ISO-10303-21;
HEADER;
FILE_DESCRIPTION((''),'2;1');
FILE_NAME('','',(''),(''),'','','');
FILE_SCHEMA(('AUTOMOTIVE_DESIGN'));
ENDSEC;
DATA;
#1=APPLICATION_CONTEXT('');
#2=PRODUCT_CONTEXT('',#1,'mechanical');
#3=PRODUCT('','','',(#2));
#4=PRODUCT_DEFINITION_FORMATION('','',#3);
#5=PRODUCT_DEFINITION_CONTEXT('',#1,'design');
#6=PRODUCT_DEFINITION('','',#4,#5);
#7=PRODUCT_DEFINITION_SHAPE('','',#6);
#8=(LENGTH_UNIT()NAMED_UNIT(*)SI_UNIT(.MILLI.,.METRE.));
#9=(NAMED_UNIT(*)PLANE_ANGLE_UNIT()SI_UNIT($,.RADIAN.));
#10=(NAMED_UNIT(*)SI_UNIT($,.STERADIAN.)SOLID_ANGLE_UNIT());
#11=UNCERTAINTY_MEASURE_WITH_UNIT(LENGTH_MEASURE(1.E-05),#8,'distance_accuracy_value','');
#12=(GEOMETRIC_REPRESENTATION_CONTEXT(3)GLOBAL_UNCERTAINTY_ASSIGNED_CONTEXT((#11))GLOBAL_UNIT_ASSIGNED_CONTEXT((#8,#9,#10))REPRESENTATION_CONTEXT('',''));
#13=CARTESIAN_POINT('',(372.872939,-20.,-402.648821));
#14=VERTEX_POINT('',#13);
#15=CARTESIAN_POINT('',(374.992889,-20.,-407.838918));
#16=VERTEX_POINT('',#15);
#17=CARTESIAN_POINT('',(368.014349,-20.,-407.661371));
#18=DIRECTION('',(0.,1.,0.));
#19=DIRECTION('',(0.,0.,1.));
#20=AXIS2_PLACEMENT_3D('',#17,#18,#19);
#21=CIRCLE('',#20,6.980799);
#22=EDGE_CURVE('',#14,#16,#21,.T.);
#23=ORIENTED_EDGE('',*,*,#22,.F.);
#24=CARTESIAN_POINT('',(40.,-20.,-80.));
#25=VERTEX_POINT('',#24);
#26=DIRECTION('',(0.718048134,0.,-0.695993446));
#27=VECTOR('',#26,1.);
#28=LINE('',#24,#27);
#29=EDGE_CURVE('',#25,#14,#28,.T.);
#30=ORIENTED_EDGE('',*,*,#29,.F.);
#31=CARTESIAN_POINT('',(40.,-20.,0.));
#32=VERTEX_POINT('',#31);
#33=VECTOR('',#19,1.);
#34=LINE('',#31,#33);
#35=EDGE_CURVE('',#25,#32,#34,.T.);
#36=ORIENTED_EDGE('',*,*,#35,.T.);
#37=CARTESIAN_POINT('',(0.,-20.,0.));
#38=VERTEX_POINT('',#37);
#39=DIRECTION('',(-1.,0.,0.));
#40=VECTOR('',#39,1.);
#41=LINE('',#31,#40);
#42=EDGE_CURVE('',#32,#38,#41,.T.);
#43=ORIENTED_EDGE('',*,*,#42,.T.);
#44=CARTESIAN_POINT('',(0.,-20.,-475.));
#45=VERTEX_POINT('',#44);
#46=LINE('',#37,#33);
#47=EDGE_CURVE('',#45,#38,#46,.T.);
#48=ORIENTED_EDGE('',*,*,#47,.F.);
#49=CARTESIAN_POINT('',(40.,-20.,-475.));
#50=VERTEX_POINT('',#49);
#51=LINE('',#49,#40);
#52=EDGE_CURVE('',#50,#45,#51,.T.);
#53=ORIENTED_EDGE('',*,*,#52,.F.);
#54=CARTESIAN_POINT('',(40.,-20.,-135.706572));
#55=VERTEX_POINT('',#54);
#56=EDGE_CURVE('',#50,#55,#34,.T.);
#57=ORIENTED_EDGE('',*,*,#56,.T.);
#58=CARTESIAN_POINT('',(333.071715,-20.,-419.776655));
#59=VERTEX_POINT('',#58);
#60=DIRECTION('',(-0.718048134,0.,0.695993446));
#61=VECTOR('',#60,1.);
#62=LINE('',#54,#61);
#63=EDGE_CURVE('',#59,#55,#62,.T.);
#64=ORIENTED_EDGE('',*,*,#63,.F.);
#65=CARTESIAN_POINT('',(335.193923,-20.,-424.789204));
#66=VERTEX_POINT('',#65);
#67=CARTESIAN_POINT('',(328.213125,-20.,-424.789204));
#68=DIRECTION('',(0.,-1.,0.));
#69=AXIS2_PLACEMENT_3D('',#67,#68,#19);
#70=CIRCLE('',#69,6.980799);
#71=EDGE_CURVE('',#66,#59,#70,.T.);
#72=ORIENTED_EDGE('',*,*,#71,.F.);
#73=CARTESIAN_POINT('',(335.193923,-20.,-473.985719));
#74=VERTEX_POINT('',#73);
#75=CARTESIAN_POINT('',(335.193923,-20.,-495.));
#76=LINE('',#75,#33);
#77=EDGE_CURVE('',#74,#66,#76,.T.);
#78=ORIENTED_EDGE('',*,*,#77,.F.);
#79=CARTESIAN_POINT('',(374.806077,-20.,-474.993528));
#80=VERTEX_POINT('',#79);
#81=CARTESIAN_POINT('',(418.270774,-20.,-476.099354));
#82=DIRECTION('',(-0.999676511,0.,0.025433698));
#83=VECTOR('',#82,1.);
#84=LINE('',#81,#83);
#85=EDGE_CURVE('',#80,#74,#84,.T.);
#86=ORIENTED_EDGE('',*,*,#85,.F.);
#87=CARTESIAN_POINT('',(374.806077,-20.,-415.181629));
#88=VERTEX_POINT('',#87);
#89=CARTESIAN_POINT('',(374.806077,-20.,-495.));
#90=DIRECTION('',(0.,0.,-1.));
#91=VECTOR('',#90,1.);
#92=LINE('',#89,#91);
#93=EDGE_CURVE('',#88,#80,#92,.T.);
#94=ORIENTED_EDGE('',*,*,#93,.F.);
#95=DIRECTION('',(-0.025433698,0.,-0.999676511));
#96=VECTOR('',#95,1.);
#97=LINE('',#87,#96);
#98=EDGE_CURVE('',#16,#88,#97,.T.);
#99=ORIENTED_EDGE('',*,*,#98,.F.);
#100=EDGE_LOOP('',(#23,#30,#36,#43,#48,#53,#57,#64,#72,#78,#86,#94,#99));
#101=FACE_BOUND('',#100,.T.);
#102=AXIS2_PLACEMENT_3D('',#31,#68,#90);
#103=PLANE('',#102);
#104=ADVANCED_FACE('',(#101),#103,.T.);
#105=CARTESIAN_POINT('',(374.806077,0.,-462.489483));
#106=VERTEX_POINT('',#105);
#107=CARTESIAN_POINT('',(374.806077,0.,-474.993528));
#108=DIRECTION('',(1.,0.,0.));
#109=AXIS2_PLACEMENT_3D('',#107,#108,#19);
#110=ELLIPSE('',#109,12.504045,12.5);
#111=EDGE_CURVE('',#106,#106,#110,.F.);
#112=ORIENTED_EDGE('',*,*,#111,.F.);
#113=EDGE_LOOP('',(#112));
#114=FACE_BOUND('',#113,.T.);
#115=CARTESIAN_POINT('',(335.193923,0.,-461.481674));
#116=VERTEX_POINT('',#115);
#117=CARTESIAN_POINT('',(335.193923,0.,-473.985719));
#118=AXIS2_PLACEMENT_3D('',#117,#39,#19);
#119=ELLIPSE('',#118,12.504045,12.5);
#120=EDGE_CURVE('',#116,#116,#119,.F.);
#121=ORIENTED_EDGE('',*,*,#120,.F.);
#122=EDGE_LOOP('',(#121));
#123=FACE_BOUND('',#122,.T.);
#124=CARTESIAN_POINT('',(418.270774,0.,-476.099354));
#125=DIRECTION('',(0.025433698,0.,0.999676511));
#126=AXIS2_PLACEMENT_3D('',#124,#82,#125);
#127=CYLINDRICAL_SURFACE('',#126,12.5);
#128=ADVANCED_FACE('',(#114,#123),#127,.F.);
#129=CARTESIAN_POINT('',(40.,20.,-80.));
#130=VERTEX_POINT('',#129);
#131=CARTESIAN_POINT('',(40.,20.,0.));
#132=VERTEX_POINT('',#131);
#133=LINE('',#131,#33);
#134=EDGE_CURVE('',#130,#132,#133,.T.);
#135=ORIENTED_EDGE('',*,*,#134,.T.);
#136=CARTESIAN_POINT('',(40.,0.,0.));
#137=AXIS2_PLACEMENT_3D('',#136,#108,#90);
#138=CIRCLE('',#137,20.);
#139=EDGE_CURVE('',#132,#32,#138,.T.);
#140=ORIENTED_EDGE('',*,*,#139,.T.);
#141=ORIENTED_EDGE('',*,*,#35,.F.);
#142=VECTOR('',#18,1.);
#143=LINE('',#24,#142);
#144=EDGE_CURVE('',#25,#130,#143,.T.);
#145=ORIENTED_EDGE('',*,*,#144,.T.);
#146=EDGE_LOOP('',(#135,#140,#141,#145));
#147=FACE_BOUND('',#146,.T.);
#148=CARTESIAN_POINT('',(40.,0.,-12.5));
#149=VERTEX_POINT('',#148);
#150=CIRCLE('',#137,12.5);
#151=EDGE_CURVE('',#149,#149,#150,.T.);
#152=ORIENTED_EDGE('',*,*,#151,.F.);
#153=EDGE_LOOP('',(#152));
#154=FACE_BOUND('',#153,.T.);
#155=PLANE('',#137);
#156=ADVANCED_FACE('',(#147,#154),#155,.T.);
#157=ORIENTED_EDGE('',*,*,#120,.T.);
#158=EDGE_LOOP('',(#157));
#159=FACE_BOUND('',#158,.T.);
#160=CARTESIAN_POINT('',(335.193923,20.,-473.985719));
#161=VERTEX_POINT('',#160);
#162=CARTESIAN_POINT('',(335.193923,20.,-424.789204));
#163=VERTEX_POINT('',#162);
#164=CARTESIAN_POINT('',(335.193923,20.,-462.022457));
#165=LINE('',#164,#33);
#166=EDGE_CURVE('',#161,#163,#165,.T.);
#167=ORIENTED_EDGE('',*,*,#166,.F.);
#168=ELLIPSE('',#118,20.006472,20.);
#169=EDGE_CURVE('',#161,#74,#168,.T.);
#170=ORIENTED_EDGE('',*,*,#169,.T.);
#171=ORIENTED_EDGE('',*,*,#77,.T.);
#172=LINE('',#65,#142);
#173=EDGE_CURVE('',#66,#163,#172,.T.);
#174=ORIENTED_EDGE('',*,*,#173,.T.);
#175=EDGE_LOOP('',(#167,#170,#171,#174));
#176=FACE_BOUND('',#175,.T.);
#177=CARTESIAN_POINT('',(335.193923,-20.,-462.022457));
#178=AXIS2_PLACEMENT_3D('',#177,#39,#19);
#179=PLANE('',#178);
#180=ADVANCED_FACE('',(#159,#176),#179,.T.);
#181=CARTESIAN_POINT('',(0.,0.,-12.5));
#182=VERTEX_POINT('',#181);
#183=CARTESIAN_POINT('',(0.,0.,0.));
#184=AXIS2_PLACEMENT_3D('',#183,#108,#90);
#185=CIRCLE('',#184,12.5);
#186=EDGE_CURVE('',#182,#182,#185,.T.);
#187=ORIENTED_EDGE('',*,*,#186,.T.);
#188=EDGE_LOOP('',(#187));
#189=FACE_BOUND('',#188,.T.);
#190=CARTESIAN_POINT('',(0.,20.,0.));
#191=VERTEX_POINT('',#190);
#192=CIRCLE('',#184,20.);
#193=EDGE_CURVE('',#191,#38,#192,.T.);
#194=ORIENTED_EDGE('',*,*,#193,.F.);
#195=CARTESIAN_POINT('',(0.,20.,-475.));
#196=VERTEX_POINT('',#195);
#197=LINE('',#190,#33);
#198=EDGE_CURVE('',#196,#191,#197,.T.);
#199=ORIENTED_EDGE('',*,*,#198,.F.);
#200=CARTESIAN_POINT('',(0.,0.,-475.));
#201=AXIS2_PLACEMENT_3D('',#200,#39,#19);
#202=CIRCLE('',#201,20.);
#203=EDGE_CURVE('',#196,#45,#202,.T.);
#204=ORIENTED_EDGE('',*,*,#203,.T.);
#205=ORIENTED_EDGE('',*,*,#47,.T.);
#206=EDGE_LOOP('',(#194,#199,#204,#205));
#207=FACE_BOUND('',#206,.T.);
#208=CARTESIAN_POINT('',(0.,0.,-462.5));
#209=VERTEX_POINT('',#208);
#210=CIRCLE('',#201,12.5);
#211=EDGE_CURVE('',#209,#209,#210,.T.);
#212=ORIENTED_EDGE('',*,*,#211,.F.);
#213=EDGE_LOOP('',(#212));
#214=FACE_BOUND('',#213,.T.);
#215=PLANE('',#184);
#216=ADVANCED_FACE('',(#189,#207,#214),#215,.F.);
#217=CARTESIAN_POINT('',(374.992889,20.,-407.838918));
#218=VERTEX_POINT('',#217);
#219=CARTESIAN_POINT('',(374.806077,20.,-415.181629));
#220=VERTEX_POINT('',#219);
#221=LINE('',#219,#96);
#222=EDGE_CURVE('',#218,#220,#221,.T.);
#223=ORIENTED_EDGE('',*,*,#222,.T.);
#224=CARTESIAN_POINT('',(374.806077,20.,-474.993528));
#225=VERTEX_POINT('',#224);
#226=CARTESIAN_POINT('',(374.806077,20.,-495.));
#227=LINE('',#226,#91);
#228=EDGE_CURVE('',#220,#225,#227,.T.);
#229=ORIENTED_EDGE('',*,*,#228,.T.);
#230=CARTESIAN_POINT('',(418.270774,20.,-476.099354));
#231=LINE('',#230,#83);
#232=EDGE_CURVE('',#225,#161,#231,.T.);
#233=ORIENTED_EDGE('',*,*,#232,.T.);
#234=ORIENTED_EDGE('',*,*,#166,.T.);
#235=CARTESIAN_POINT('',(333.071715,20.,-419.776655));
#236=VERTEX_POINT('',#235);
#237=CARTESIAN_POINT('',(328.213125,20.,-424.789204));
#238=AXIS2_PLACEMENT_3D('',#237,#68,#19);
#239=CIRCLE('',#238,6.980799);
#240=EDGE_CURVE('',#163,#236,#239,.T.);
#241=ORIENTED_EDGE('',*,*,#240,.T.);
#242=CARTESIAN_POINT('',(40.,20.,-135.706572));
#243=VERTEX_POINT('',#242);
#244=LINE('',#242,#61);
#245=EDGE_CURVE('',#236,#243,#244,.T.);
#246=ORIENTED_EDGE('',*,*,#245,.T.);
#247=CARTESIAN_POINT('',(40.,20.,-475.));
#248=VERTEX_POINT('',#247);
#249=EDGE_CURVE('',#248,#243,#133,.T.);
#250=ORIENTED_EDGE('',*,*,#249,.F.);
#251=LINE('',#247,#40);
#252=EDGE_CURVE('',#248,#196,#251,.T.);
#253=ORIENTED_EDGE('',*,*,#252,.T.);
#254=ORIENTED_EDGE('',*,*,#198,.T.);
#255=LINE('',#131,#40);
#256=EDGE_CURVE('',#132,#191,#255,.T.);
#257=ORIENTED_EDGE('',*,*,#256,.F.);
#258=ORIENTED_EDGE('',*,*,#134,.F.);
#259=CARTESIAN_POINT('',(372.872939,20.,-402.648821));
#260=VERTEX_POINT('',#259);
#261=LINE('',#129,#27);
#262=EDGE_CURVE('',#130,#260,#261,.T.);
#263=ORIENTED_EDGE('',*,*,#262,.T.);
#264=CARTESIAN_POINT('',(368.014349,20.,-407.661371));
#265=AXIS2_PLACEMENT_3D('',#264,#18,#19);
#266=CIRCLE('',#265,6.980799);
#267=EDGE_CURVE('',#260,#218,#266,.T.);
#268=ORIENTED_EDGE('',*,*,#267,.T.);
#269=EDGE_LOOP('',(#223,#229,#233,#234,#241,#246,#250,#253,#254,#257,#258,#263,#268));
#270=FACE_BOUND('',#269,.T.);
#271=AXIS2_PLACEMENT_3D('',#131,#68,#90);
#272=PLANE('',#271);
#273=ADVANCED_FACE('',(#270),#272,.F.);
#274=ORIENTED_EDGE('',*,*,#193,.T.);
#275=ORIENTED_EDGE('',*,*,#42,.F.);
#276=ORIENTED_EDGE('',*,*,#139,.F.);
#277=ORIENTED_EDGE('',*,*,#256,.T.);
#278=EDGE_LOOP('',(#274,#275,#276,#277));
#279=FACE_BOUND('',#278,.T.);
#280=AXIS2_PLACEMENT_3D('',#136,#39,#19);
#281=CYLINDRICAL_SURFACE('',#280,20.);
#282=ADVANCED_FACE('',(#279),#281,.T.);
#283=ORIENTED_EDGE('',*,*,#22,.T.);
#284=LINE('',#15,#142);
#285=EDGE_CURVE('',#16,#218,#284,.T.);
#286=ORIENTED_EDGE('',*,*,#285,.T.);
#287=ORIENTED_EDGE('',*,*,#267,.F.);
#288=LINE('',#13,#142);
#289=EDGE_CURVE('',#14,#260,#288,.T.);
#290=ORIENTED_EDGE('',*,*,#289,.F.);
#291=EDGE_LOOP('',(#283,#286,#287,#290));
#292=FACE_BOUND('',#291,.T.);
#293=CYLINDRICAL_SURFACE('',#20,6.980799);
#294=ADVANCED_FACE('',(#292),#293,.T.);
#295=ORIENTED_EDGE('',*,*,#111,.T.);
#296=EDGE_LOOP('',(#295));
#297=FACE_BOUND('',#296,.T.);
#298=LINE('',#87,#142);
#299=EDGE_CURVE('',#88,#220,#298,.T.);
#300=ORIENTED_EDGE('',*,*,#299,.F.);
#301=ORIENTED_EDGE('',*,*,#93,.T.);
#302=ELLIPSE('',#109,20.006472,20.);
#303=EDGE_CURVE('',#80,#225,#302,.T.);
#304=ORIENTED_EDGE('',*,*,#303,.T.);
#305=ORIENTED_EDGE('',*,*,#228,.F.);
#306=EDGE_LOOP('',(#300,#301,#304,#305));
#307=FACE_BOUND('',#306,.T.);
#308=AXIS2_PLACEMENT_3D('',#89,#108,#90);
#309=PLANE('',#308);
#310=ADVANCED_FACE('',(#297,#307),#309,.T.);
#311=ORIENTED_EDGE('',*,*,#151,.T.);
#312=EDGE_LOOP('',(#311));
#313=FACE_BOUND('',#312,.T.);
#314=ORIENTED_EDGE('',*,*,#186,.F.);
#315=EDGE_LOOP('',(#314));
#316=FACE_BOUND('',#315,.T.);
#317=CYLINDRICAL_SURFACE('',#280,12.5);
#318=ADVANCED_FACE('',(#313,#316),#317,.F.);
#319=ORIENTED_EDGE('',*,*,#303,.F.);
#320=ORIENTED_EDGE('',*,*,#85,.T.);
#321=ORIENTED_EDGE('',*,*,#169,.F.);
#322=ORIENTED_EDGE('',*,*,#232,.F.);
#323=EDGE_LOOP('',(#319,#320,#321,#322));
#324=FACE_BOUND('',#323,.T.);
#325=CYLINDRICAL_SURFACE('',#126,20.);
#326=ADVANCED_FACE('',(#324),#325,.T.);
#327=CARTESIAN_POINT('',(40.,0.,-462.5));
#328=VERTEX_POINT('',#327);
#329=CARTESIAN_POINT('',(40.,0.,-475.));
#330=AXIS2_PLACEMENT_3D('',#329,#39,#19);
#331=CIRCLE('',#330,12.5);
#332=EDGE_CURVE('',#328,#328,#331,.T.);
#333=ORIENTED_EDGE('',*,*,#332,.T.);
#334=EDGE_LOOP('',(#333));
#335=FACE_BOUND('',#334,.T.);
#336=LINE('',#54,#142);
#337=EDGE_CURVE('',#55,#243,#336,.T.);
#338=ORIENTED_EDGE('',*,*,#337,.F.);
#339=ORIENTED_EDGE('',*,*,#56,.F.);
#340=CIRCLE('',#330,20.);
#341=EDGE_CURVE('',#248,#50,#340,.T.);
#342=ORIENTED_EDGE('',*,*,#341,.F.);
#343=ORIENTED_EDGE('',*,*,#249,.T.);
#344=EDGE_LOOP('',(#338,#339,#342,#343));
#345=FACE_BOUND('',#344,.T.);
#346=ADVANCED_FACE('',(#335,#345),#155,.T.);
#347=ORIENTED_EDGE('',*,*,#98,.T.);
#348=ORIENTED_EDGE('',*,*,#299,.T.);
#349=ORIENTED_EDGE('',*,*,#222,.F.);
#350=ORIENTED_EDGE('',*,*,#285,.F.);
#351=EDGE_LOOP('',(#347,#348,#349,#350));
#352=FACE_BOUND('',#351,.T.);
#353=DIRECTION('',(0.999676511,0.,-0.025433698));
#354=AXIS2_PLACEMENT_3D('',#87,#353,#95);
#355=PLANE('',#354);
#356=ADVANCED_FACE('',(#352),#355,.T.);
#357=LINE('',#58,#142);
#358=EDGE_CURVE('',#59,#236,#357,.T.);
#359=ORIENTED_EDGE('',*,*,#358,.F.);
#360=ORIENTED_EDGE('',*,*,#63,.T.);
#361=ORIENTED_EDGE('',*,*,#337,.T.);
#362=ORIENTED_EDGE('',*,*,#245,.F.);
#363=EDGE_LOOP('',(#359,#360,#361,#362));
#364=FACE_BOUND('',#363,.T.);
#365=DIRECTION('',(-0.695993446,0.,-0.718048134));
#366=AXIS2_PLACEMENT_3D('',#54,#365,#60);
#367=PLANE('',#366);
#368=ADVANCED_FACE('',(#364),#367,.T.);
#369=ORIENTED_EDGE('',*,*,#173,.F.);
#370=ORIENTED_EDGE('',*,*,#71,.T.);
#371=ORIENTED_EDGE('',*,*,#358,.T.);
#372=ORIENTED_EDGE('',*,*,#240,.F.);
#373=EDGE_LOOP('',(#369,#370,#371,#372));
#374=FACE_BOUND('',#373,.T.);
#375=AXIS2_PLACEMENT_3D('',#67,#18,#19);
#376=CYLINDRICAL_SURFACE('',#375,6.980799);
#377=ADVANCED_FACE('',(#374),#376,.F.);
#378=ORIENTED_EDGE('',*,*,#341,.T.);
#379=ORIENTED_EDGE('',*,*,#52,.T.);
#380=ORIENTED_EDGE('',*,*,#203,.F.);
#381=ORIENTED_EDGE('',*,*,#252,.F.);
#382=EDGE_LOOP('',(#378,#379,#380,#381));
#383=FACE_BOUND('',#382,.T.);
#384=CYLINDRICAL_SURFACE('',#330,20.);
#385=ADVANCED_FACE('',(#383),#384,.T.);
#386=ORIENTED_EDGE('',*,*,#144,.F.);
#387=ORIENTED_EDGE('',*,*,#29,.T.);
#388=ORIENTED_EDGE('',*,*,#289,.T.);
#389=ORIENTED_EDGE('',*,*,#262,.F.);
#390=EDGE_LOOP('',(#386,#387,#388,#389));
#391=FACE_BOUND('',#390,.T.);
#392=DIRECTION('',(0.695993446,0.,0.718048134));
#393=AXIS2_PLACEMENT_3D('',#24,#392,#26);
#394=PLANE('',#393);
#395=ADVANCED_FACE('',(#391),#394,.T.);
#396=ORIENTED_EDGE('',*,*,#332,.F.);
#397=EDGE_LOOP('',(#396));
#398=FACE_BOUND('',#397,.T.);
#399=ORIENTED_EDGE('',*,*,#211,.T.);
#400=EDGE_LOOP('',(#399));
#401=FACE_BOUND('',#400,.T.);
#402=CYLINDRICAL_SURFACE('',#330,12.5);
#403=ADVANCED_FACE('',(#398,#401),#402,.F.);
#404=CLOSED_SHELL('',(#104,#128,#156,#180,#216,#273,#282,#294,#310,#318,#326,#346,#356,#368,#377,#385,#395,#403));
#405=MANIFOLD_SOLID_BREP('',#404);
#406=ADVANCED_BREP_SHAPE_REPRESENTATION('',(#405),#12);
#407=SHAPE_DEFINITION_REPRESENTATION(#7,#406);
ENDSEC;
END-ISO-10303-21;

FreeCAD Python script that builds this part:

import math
import FreeCAD as App
import Part
import Sketcher

V = App.Vector

doc = App.newDocument("Part")
body = doc.addObject("PartDesign::Body", "Body")

# Sketch on YZ plane
sketch1 = body.newObject("Sketcher::SketchObject", "Sketch")
sketch1.AttachmentSupport = (doc.getObject("YZ_Plane"), [""])
sketch1.MapMode = "FlatFace"
sketch1.addGeometry(Part.ArcOfCircle(Part.Circle(V(0, 0, 0), V(0, 0, 1), 20), math.radians(0), math.radians(180)), False)
sketch1.addGeometry(Part.LineSegment(V(-20, 0, 0), V(-20, -475, 0)), False)
sketch1.addGeometry(Part.ArcOfCircle(Part.Circle(V(0, -475, 0), V(0, 0, 1), 20), math.radians(180), math.radians(360)), False)
sketch1.addGeometry(Part.LineSegment(V(20, -475, 0), V(20, 0, 0)), False)
sketch1.addGeometry(Part.Circle(V(0, 0, 0), V(0, 0, 1), 12), False)
sketch1.addGeometry(Part.Circle(V(0, -475, 0), V(0, 0, 1), 12), False)
sketch1.addConstraint(Sketcher.Constraint("Tangent", 0, 2, 1, 1))
sketch1.addConstraint(Sketcher.Constraint("Tangent", 1, 2, 2, 1))
sketch1.addConstraint(Sketcher.Constraint("Tangent", 2, 2, 3, 1))
sketch1.addConstraint(Sketcher.Constraint("Tangent", 3, 2, 0, 1))
sketch1.addConstraint(Sketcher.Constraint("Vertical", 1))
sketch1.addConstraint(Sketcher.Constraint("Vertical", 3))
sketch1.addConstraint(Sketcher.Constraint("Coincident", 0, 3, -1, 1))
sketch1.addConstraint(Sketcher.Constraint("Coincident", 4, 3, -1, 1))
sketch1.addConstraint(Sketcher.Constraint("Coincident", 5, 3, 2, 3))
sketch1.addConstraint(Sketcher.Constraint("Equal", 4, 5))
sketch1.addConstraint(Sketcher.Constraint("Diameter", 4, 25.0))
sketch1.addConstraint(Sketcher.Constraint("Radius", 0, 20.0))
sketch1.addConstraint(Sketcher.Constraint("DistanceY", 1, 2, 1, 1, 475.0))
pad1 = body.newObject("PartDesign::Pad", "Pad")
pad1.Profile = sketch1
pad1.Length = 40

# Sketch on XZ plane
sketch2 = body.newObject("Sketcher::SketchObject", "Sketch001")
sketch2.AttachmentSupport = (doc.getObject("XZ_Plane"), [""])
sketch2.MapMode = "FlatFace"
sketch2.AttachmentOffset = App.Placement(V(0, 0, -20), App.Rotation())
sketch2.addGeometry(Part.LineSegment(V(40, -136, 0), V(40, -80, 0)), False)
sketch2.addGeometry(Part.LineSegment(V(40, -80, 0), V(373, -403, 0)), False)
sketch2.addGeometry(Part.ArcOfCircle(Part.Circle(V(368, -408, 0), V(0, 0, 1), 7), math.radians(-1), math.radians(46)), False)
sketch2.addGeometry(Part.LineSegment(V(375, -408, 0), V(375, -415, 0)), False)
sketch2.addGeometry(Part.LineSegment(V(375, -415, 0), V(375, -495, 0)), False)
sketch2.addGeometry(Part.LineSegment(V(375, -495, 0), V(335, -495, 0)), False)
sketch2.addGeometry(Part.LineSegment(V(335, -495, 0), V(335, -425, 0)), False)
sketch2.addGeometry(Part.ArcOfCircle(Part.Circle(V(328, -425, 0), V(0, 0, 1), 7), math.radians(0), math.radians(46)), False)
sketch2.addGeometry(Part.LineSegment(V(333, -420, 0), V(40, -136, 0)), False)
sketch2.addConstraint(Sketcher.Constraint("Coincident", 0, 2, 1, 1))
sketch2.addConstraint(Sketcher.Constraint("Tangent", 1, 2, 2, 2))
sketch2.addConstraint(Sketcher.Constraint("Tangent", 2, 1, 3, 1))
sketch2.addConstraint(Sketcher.Constraint("Coincident", 3, 2, 4, 1))
sketch2.addConstraint(Sketcher.Constraint("Coincident", 4, 2, 5, 1))
sketch2.addConstraint(Sketcher.Constraint("Coincident", 5, 2, 6, 1))
sketch2.addConstraint(Sketcher.Constraint("Tangent", 6, 2, 7, 1))
sketch2.addConstraint(Sketcher.Constraint("Tangent", 7, 2, 8, 1))
sketch2.addConstraint(Sketcher.Constraint("Coincident", 8, 2, 0, 1))
sketch2.addConstraint(Sketcher.Constraint("Vertical", 0))
sketch2.addConstraint(Sketcher.Constraint("Vertical", 4))
sketch2.addConstraint(Sketcher.Constraint("Horizontal", 5))
sketch2.addConstraint(Sketcher.Constraint("Vertical", 6))
sketch2.addConstraint(Sketcher.Constraint("Equal", 2, 7))
sketch2.addConstraint(Sketcher.Constraint("Parallel", 1, 8))
sketch2.addConstraint(Sketcher.Constraint("DistanceX", -1, 1, 0, 2, 40.0))
sketch2.addConstraint(Sketcher.Constraint("DistanceY", 0, 2, -1, 1, 80.0))
sketch2.addConstraint(Sketcher.Constraint("DistanceY", 4, 2, -1, 1, 495.0))
sketch2.addConstraint(Sketcher.Constraint("Radius", 2, 6.980799))
sketch2.addConstraint(Sketcher.Constraint("DistanceY", 0, 1, 0, 2, 55.706572))
sketch2.addConstraint(Sketcher.Constraint("DistanceY", 4, 2, 4, 1, 79.818371))
sketch2.addConstraint(Sketcher.Constraint("DistanceY", 2, 3, 8, 2, 271.954799))
sketch2.addConstraint(Sketcher.Constraint("DistanceX", 5, 2, 5, 1, 39.612153))
sketch2.addConstraint(Sketcher.Constraint("DistanceY", 6, 1, 6, 2, 70.210796))
sketch2.addConstraint(Sketcher.Constraint("DistanceX", -1, 1, 2, 3, 368.014349))
pad2 = body.newObject("PartDesign::Pad", "Pad001")
pad2.Profile = sketch2
pad2.Length = 40

# Sketch on an angled plane
sketch3 = body.newObject("Sketcher::SketchObject", "Sketch002")
sketch3.Placement = App.Placement(V(385.119813, 0, -9.798191), App.Rotation(V(-0.025433698, 0, -0.999676511), V(0, 1, 0), V(0.999676511, 0, -0.025433698), "ZXY"))
sketch3.addGeometry(Part.Circle(V(465, 0, 0), V(0, 0, 1), 12), False)
sketch3.addGeometry(Part.LineSegment(V(531, 20, 0), V(465, 20, 0)), False)
sketch3.addGeometry(Part.ArcOfCircle(Part.Circle(V(465, 0, 0), V(0, 0, 1), 20), math.radians(-90), math.radians(90)), False)
sketch3.addGeometry(Part.LineSegment(V(465, -20, 0), V(531, -20, 0)), False)
sketch3.addGeometry(Part.LineSegment(V(531, -20, 0), V(531, 20, 0)), False)
sketch3.addConstraint(Sketcher.Constraint("Tangent", 1, 2, 2, 2))
sketch3.addConstraint(Sketcher.Constraint("Tangent", 2, 1, 3, 1))
sketch3.addConstraint(Sketcher.Constraint("Coincident", 3, 2, 4, 1))
sketch3.addConstraint(Sketcher.Constraint("Coincident", 4, 2, 1, 1))
sketch3.addConstraint(Sketcher.Constraint("Horizontal", 1))
sketch3.addConstraint(Sketcher.Constraint("Horizontal", 3))
sketch3.addConstraint(Sketcher.Constraint("Vertical", 4))
sketch3.addConstraint(Sketcher.Constraint("Coincident", 2, 3, 0, 3))
sketch3.addConstraint(Sketcher.Constraint("PointOnObject", 0, 3, -1))
sketch3.addConstraint(Sketcher.Constraint("Diameter", 0, 25.0))
sketch3.addConstraint(Sketcher.Constraint("Radius", 2, 20.0))
sketch3.addConstraint(Sketcher.Constraint("DistanceX", 1, 2, 1, 1, 65.843849))
sketch3.addConstraint(Sketcher.Constraint("DistanceX", -1, 1, 0, 3, 465.307168))
pocket1 = body.newObject("PartDesign::Pocket", "Pocket")
pocket1.Profile = sketch3
pocket1.Type = "TwoLengths"
pocket1.Length = 45
pocket1.Length2 = 45
pocket1.Reversed = True

doc.recompute()
